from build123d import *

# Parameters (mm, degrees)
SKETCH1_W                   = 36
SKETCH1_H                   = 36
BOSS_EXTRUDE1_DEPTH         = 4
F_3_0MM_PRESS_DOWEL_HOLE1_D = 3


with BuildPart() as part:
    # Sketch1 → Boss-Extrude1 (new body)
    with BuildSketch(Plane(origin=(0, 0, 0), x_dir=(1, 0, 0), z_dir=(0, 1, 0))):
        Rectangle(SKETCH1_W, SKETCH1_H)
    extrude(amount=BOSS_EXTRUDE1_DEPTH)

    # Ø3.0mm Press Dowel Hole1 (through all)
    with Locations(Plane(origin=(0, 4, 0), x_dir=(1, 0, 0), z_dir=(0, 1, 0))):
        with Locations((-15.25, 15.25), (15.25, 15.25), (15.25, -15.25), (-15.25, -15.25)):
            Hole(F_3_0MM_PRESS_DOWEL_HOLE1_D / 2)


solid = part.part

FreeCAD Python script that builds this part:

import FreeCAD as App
import Part
import Sketcher
Q = App.Units.Quantity


def add_polygon(sketch, points):
    """Adds a closed chain of lines whose ends are joined by coincident constraints."""
    first, n = sketch.GeometryCount, len(points)
    for a, b in zip(points, points[1:] + points[:1]):
        sketch.addGeometry(Part.LineSegment(App.Vector(*a, 0), App.Vector(*b, 0)), False)
    for i in range(n):
        sketch.addConstraint(Sketcher.Constraint("Coincident", first + i, 2, first + (i + 1) % n, 1))

doc = App.newDocument("Part")
body = doc.addObject("PartDesign::Body", "Body")

# Sketch on XZ plane
sketch1 = doc.addObject("Sketcher::SketchObject", "Sketch")
body.addObject(sketch1)
sketch1.AttachmentSupport = (doc.XZ_Plane, [""])
sketch1.MapMode = "FlatFace"
add_polygon(sketch1, [(-18, -18), (-18, 18), (18, 18), (18, -18)])  # lines 0-3
sketch1.addConstraint(Sketcher.Constraint("Vertical", 0))
sketch1.addConstraint(Sketcher.Constraint("Horizontal", 1))
sketch1.addConstraint(Sketcher.Constraint("Vertical", 2))
sketch1.addConstraint(Sketcher.Constraint("Horizontal", 3))
sketch1.addConstraint(Sketcher.Constraint("Symmetric", 0, 2, 2, 2, -1, 1))
sketch1.addConstraint(Sketcher.Constraint("Equal", 3, 0))
sketch1.addConstraint(Sketcher.Constraint("DistanceX", 1, 1, 1, 2, Q("36 mm")))
pad1 = doc.addObject("PartDesign::Pad", "Pad")
body.addObject(pad1)
pad1.Profile = sketch1
pad1.Length = 4
pad1.Reversed = True

# Sketch on XZ plane
sketch2 = doc.addObject("Sketcher::SketchObject", "Sketch001")
body.addObject(sketch2)
sketch2.AttachmentSupport = (doc.XZ_Plane, [""])
sketch2.MapMode = "FlatFace"
sketch2.AttachmentOffset = App.Placement(App.Vector(0, 0, -4), App.Rotation())
sketch2.addGeometry(Part.Circle(App.Vector(-15.2, -15.2, 0), App.Vector(0, 0, 1), 1.5), False)
sketch2.addGeometry(Part.Circle(App.Vector(15.2, -15.2, 0), App.Vector(0, 0, 1), 1.5), False)
sketch2.addGeometry(Part.Circle(App.Vector(15.2, 15.2, 0), App.Vector(0, 0, 1), 1.5), False)
sketch2.addGeometry(Part.Circle(App.Vector(-15.2, 15.2, 0), App.Vector(0, 0, 1), 1.5), False)
sketch2.addConstraint(Sketcher.Constraint("Equal", 0, 1))
sketch2.addConstraint(Sketcher.Constraint("Equal", 1, 2))
sketch2.addConstraint(Sketcher.Constraint("Equal", 2, 3))
sketch2.addConstraint(Sketcher.Constraint("Symmetric", 0, 3, 2, 3, -1, 1))
sketch2.addConstraint(Sketcher.Constraint("Symmetric", 1, 3, 3, 3, -1, 1))
sketch2.addConstraint(Sketcher.Constraint("Symmetric", 0, 3, 1, 3, -2))
sketch2.addConstraint(Sketcher.Constraint("Diameter", 0, Q("3 mm")))
sketch2.addConstraint(Sketcher.Constraint("DistanceX", 0, 3, 1, 3, Q("30.5 mm")))
sketch2.addConstraint(Sketcher.Constraint("DistanceY", 1, 3, 2, 3, Q("30.5 mm")))
doc.recompute()
hole = doc.addObject("PartDesign::Hole", "Hole")
body.addObject(hole)
hole.Profile = sketch2
hole.ThreadType = "None"
hole.Diameter = 3
hole.DepthType = "ThroughAll"
hole.Reversed = True

doc.recompute()
